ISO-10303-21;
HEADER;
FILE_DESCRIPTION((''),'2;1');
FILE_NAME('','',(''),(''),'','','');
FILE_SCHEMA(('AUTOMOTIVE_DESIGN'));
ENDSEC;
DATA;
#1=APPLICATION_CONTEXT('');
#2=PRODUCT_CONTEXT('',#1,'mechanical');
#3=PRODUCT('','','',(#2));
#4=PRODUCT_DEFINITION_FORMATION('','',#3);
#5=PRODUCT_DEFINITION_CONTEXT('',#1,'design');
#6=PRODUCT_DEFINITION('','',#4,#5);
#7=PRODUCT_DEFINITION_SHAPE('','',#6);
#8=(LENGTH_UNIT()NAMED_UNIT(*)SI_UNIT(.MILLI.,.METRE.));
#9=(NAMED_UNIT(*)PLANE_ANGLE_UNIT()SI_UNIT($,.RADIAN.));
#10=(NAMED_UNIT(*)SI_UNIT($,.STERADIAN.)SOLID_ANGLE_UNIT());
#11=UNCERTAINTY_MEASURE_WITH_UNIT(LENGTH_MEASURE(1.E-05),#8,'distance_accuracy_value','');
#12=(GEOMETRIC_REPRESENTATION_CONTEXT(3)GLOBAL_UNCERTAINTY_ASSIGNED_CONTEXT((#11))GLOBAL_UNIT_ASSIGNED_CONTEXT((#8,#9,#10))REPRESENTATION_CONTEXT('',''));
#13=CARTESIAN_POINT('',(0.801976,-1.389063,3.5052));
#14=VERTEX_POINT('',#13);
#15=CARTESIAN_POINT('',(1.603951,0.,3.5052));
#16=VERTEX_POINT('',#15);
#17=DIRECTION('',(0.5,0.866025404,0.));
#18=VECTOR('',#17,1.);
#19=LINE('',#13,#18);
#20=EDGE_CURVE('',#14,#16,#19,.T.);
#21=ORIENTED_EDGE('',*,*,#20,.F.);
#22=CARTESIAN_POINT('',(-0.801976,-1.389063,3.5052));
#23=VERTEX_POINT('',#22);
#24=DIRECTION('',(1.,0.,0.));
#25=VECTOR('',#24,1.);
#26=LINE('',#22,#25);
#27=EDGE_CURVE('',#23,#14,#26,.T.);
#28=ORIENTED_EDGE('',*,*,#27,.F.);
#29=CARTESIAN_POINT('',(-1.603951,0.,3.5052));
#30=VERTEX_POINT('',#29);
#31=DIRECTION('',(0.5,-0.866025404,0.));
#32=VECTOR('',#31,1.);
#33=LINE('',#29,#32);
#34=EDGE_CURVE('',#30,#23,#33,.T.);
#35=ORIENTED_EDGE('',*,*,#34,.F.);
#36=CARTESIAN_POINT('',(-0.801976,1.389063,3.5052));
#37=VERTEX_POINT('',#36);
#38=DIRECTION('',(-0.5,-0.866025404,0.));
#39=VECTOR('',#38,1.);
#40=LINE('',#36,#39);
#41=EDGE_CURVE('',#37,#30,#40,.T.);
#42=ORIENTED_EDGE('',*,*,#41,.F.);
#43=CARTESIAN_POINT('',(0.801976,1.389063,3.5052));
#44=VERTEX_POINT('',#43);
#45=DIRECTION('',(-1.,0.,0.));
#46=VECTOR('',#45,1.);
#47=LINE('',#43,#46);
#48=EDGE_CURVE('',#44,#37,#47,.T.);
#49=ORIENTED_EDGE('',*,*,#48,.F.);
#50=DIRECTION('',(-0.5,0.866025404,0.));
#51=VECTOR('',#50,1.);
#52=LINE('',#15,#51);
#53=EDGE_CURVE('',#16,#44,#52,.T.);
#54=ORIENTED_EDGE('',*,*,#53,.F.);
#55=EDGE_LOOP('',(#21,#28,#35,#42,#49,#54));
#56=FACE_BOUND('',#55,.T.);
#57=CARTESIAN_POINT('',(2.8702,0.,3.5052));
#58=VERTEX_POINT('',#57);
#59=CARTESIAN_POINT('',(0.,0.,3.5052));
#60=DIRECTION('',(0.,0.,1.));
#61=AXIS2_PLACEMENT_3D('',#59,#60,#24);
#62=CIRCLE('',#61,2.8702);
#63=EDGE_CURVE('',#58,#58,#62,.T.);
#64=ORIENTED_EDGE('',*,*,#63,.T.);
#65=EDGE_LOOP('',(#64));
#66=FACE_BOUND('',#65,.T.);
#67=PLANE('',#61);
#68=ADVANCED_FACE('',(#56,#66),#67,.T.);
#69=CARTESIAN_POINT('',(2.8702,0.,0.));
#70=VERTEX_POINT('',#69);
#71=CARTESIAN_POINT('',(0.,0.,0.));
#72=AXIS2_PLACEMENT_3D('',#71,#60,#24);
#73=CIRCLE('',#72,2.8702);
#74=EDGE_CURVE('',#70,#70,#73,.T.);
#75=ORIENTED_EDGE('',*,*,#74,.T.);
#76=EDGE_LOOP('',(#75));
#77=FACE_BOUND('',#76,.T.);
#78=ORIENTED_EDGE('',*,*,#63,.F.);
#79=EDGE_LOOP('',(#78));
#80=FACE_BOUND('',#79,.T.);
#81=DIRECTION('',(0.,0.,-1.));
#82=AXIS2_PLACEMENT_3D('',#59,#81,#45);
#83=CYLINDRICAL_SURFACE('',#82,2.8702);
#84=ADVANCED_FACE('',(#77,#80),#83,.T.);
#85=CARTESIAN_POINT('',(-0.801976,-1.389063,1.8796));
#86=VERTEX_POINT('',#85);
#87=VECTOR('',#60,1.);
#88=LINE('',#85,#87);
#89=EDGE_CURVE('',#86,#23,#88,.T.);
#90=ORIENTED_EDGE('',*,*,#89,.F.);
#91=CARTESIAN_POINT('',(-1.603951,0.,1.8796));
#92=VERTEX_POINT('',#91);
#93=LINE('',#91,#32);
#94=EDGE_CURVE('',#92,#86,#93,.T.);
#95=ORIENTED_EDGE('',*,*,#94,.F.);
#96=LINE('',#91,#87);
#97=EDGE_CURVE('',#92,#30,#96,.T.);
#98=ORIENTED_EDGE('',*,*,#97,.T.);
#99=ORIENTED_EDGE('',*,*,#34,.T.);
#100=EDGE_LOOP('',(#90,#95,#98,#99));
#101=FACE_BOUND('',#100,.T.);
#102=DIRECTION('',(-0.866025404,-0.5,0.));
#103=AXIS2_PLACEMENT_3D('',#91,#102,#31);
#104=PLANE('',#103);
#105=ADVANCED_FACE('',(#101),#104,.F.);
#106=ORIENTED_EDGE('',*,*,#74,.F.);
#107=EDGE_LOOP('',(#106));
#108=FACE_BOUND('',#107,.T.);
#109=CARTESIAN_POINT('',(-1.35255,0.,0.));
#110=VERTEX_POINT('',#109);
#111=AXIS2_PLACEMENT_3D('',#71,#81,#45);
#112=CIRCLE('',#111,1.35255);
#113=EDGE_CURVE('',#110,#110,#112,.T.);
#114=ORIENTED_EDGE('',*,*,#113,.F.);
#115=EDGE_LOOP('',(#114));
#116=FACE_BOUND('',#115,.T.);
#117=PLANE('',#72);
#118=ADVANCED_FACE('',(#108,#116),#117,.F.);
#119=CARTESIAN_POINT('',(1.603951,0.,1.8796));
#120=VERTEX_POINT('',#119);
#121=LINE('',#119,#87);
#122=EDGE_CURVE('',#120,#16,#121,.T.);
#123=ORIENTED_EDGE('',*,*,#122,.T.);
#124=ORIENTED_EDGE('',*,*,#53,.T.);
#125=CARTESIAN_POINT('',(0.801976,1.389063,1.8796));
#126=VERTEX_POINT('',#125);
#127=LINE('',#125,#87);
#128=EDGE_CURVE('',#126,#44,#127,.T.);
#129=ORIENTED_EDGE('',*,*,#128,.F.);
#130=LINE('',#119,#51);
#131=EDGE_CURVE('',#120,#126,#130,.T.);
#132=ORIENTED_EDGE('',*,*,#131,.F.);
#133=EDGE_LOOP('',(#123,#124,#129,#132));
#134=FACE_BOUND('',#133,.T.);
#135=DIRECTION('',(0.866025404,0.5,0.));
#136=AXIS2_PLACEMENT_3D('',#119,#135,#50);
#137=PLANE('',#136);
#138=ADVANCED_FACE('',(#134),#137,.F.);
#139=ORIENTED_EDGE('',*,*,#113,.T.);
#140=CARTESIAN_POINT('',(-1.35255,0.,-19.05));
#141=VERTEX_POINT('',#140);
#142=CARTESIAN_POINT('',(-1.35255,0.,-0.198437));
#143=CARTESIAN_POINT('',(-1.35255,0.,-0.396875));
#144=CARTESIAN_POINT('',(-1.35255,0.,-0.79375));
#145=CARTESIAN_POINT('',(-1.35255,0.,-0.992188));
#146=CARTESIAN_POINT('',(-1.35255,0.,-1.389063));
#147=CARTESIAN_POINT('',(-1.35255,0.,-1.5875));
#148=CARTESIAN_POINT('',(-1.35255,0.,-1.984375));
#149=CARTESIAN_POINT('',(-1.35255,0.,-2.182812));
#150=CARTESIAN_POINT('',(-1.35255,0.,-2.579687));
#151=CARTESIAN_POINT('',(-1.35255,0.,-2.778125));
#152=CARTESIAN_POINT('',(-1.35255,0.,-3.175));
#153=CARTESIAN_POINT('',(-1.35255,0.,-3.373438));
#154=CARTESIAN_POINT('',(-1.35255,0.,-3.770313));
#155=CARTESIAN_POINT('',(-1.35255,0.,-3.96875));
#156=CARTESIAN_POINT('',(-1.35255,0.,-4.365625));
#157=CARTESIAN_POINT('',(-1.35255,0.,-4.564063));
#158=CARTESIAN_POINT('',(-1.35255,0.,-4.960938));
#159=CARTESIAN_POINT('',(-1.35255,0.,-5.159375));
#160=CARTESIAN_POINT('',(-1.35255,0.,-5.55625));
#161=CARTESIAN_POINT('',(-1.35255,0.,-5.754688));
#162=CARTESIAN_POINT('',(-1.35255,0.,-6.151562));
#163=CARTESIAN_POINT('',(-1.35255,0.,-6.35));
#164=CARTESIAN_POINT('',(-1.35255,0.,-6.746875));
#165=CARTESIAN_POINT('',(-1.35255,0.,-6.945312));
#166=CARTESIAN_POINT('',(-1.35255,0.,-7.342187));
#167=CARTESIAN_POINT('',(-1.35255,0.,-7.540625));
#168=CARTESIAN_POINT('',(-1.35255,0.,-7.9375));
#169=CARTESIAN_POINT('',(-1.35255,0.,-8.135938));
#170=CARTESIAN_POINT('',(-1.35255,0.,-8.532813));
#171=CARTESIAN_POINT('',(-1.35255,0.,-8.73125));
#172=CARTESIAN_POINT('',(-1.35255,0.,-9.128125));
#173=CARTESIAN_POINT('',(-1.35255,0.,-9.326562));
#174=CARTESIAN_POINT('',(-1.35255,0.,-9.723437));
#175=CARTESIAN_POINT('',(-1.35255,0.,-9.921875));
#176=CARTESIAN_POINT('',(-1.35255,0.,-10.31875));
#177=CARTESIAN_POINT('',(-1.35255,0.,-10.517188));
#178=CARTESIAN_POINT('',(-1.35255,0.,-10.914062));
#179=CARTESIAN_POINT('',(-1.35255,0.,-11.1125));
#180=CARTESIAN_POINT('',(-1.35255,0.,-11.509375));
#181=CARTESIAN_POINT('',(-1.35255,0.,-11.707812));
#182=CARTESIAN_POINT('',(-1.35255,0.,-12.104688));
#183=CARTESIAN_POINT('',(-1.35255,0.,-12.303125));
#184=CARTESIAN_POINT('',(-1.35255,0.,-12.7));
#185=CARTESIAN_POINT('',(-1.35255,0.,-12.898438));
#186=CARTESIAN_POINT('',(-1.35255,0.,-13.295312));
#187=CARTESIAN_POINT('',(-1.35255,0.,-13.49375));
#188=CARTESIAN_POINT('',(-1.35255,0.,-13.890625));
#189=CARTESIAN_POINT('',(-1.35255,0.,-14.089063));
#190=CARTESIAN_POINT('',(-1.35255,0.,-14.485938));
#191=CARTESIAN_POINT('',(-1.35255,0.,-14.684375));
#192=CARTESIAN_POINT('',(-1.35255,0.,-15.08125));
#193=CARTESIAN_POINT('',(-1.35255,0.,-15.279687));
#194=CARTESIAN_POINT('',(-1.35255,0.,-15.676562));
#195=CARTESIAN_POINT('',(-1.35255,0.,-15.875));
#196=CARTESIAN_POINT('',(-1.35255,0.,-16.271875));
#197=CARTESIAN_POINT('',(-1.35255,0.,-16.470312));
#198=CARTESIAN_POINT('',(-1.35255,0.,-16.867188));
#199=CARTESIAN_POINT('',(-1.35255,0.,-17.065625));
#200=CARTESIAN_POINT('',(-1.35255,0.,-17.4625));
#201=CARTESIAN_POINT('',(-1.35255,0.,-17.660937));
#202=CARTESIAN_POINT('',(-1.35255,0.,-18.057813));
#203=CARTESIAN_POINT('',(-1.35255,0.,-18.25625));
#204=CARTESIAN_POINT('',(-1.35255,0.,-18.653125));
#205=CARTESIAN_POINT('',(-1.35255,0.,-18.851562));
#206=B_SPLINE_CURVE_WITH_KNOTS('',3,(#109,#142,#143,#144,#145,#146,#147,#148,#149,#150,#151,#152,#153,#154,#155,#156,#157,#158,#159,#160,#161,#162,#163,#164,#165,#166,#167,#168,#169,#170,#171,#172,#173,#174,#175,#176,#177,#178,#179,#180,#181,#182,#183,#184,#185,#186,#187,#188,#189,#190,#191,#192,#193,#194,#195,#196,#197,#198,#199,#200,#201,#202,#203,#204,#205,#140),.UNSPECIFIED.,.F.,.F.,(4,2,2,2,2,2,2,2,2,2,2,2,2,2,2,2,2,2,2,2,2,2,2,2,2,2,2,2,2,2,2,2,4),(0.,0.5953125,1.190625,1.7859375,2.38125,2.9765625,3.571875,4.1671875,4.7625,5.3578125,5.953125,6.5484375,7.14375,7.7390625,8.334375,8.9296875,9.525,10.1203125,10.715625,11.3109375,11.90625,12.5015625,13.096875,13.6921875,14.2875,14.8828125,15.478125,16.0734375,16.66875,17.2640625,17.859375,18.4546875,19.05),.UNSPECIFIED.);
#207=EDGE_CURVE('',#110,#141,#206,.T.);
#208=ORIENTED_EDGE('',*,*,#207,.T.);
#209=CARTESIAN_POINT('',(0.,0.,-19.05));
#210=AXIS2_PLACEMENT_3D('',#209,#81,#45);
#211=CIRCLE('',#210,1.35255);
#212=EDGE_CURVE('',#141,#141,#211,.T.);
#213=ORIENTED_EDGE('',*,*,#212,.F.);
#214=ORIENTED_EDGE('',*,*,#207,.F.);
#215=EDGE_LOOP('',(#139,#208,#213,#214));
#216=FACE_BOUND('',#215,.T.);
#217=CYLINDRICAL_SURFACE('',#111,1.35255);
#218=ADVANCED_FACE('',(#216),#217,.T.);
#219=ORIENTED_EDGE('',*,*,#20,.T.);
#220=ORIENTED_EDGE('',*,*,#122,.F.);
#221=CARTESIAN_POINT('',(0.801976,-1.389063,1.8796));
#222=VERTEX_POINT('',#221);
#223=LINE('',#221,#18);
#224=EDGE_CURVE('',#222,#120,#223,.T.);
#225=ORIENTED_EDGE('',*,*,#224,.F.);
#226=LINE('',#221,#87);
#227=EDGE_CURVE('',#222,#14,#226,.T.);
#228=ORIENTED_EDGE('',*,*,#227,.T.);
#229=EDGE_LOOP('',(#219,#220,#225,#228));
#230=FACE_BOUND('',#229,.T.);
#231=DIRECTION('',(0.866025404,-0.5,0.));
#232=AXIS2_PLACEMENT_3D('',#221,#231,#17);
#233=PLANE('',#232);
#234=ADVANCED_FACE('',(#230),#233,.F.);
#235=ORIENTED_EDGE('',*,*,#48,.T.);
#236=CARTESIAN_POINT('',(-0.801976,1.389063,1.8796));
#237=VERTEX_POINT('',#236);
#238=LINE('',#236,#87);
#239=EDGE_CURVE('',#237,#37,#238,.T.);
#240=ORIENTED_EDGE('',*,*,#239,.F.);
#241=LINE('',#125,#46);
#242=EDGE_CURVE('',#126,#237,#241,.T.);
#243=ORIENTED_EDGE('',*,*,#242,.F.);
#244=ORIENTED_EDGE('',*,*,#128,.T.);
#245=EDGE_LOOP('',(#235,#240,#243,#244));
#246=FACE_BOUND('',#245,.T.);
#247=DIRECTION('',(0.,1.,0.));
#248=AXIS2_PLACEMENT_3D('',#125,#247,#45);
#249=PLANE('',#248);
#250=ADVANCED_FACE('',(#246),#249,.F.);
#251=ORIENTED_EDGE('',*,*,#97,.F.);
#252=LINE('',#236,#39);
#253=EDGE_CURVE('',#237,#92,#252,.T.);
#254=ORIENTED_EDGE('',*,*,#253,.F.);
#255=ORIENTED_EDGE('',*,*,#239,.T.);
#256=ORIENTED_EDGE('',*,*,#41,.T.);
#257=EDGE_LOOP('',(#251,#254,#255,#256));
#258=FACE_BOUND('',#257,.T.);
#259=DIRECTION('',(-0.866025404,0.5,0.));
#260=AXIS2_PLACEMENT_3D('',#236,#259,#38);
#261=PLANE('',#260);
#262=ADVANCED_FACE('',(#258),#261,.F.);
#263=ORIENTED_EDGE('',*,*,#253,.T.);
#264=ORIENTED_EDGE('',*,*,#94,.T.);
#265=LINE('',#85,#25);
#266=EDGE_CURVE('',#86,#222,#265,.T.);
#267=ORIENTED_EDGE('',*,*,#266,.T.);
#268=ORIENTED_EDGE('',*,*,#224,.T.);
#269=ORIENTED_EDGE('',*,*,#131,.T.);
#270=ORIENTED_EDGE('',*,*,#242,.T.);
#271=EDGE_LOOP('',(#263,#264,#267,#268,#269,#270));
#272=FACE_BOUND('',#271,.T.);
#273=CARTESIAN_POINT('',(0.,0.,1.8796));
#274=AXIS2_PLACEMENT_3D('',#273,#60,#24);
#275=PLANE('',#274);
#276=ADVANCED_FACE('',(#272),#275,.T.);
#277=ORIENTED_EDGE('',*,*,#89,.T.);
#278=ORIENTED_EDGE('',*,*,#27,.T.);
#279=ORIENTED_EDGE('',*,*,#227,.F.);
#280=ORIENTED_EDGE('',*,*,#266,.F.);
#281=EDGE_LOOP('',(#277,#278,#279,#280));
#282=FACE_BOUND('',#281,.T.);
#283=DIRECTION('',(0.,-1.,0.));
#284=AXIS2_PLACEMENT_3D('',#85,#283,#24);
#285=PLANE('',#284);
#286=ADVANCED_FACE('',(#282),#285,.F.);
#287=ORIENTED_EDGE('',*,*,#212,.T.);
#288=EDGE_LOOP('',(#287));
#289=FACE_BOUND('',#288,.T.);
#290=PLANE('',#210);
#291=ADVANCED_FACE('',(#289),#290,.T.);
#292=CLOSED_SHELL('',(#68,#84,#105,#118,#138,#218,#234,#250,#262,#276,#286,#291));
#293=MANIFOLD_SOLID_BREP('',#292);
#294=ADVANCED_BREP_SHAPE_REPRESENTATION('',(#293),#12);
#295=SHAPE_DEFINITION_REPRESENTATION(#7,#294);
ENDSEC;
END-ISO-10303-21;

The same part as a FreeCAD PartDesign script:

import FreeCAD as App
import Part
import Sketcher
from FreeCAD import Vector
Q = App.Units.Quantity


def add_polygon(sketch, points):
    """Adds a closed chain of lines whose ends are joined by coincident constraints."""
    first, n = sketch.GeometryCount, len(points)
    for a, b in zip(points, points[1:] + points[:1]):
        sketch.addGeometry(Part.LineSegment(App.Vector(*a, 0), App.Vector(*b, 0)), False)
    for i in range(n):
        sketch.addConstraint(Sketcher.Constraint("Coincident", first + i, 2, first + (i + 1) % n, 1))

doc = App.newDocument("Part")
body = doc.addObject("PartDesign::Body", "Body")

sketch1 = body.newObject("Sketcher::SketchObject", "Sketch")
sketch1.AttachmentSupport = (doc.getObject("XY_Plane"), [""])
sketch1.MapMode = "FlatFace"
sketch1.addGeometry(Part.Circle(Vector(0, 0, 0), Vector(0, 0, 1), 2.9), False)
sketch1.addConstraint([
    Sketcher.Constraint("Coincident", 0, 3, -1, 1),
    Sketcher.Constraint("Diameter", 0, Q("0.226 in")),
])
pad1 = body.newObject("PartDesign::Pad", "Pad")
pad1.Profile = sketch1
pad1.Length = Q("0.138 in")

sketch2 = body.newObject("Sketcher::SketchObject", "Sketch001")
sketch2.AttachmentSupport = (doc.getObject("XY_Plane"), [""])
sketch2.MapMode = "FlatFace"
sketch2.addGeometry(Part.Circle(Vector(0, 0, 0), Vector(0, 0, 1), 1.8), False)
sketch2.addConstraint([
    Sketcher.Constraint("Coincident", 0, 3, -1, 1),
    Sketcher.Constraint("Diameter", 0, Q("0.138 in")),
])
pad2 = body.newObject("PartDesign::Pad", "Pad001")
pad2.Profile = sketch2
pad2.Length = Q("0.75 in")
pad2.Reversed = True

sketch3 = body.newObject("Sketcher::SketchObject", "Sketch002")
sketch3.AttachmentSupport = (doc.getObject("XY_Plane"), [""])
sketch3.MapMode = "FlatFace"
sketch3.AttachmentOffset = App.Placement(Vector(0, 0, -0.75 * 25.4), App.Rotation())
add_polygon(sketch3, [(6.3, 6.3), (6.3, -6.3), (-6.3, -6.3), (-6.3, 6.3)])
sketch3.addGeometry(Part.Circle(Vector(0, 0, 0), Vector(0, 0, 1), 1.4), False)
sketch3.addConstraint([
    Sketcher.Constraint("Vertical", 0),
    Sketcher.Constraint("Horizontal", 1),
    Sketcher.Constraint("Vertical", 2),
    Sketcher.Constraint("Horizontal", 3),
    Sketcher.Constraint("Coincident", 4, 3, -1, 1),
    Sketcher.Constraint("Symmetric", 0, 2, 2, 2, -1, 1),
    Sketcher.Constraint("Equal", 3, 0),
    Sketcher.Constraint("Diameter", 4, Q("0.1065 in")),
    Sketcher.Constraint("DistanceX", 1, 2, 1, 1, 12.534),
])
pocket1 = body.newObject("PartDesign::Pocket", "Pocket")
pocket1.Profile = sketch3
pocket1.Length = Q("0.75 in")
pocket1.Reversed = True

sketch4 = body.newObject("Sketcher::SketchObject", "Sketch003")
sketch4.AttachmentSupport = (doc.getObject("XY_Plane"), [""])
sketch4.MapMode = "FlatFace"
sketch4.AttachmentOffset = App.Placement(Vector(0, 0, 0.138 * 25.4), App.Rotation())
add_polygon(sketch4, [(0.8, 1.4), (-0.8, 1.4), (-1.6, 0), (-0.8, -1.4), (0.8, -1.4), (1.6, 0)])
sketch4.addConstraint([
    Sketcher.Constraint("Horizontal", 0),
    Sketcher.Constraint("Horizontal", 3),
    Sketcher.Constraint("Symmetric", 0, 2, 3, 2, -1, 1),
    Sketcher.Constraint("Symmetric", 1, 2, 4, 2, -1, 1),
    Sketcher.Constraint("PointOnObject", 1, 2, -1),
    Sketcher.Constraint("Parallel", 2, 5),
    Sketcher.Constraint("Vertical", 0, 2, 2, 2),
    Sketcher.Constraint("Angle", 1, Q("-120 deg")),
    Sketcher.Constraint("DistanceY", 2, 2, 0, 2, Q("0.109375 in")),
    Sketcher.Constraint("DistanceX", 0, 2, 0, 1, 1.603951),
])
pocket2 = body.newObject("PartDesign::Pocket", "Pocket001")
pocket2.Profile = sketch4
pocket2.Length = Q("0.064 in")

doc.recompute()
